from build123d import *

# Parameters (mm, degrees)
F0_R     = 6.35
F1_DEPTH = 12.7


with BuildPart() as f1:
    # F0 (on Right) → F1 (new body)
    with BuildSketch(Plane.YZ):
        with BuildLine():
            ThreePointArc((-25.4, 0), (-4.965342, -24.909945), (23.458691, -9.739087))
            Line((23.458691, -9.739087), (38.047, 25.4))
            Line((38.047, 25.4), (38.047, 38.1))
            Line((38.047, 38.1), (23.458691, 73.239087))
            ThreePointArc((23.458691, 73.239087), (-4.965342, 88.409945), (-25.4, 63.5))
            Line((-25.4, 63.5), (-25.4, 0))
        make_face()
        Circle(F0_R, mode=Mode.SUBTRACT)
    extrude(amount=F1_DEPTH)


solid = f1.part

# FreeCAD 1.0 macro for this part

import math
import FreeCAD as App
import Part
import Sketcher
from FreeCAD import Vector
Q = App.Units.Quantity

doc = App.newDocument("Part")
body = doc.addObject("PartDesign::Body", "Body")

# Sketch on YZ plane
sketch1 = body.newObject("Sketcher::SketchObject", "Sketch")
sketch1.AttachmentSupport = (doc.getObject("YZ_Plane"), [""])
sketch1.MapMode = "FlatFace"
sketch1.addGeometry(Part.ArcOfCircle(Part.Circle(Vector(0, 0, 0), Vector(0, 0, 1), 25), math.radians(-180), math.radians(-23)), False)
sketch1.addGeometry(Part.LineSegment(Vector(23, -10, 0), Vector(38, 25, 0)), False)
sketch1.addGeometry(Part.LineSegment(Vector(38, 25, 0), Vector(38, 38, 0)), False)
sketch1.addGeometry(Part.LineSegment(Vector(38, 38, 0), Vector(23, 73, 0)), False)
sketch1.addGeometry(Part.ArcOfCircle(Part.Circle(Vector(0, 63, 0), Vector(0, 0, 1), 25), math.radians(23), math.radians(180)), False)
sketch1.addGeometry(Part.LineSegment(Vector(-25, 64, 0), Vector(-25, 0, 0)), False)
sketch1.addGeometry(Part.Circle(Vector(0, 0, 0), Vector(0, 0, 1), 6), False)
sketch1.addConstraint(Sketcher.Constraint("Tangent", 0, 2, 1, 1))
sketch1.addConstraint(Sketcher.Constraint("Coincident", 1, 2, 2, 1))
sketch1.addConstraint(Sketcher.Constraint("Coincident", 2, 2, 3, 1))
sketch1.addConstraint(Sketcher.Constraint("Tangent", 3, 2, 4, 1))
sketch1.addConstraint(Sketcher.Constraint("Tangent", 4, 2, 5, 1))
sketch1.addConstraint(Sketcher.Constraint("Tangent", 5, 2, 0, 1))
sketch1.addConstraint(Sketcher.Constraint("Vertical", 2))
sketch1.addConstraint(Sketcher.Constraint("Vertical", 5))
sketch1.addConstraint(Sketcher.Constraint("Coincident", 0, 3, -1, 1))
sketch1.addConstraint(Sketcher.Constraint("Coincident", 6, 3, -1, 1))
sketch1.addConstraint(Sketcher.Constraint("Equal", 0, 4))
sketch1.addConstraint(Sketcher.Constraint("Vertical", 0, 2, 3, 2))
sketch1.addConstraint(Sketcher.Constraint("Radius", 0, Q("1 in")))
sketch1.addConstraint(Sketcher.Constraint("Diameter", 6, Q("0.5 in")))
sketch1.addConstraint(Sketcher.Constraint("DistanceY", 2, 1, 2, 2, Q("0.5 in")))
sketch1.addConstraint(Sketcher.Constraint("DistanceY", 5, 2, 5, 1, Q("2.5 in")))
sketch1.addConstraint(Sketcher.Constraint("Distance", 1, Q("38.047 mm")))
pad1 = body.newObject("PartDesign::Pad", "Pad")
pad1.Profile = sketch1
pad1.Length = Q("0.5 in")

doc.recompute()
